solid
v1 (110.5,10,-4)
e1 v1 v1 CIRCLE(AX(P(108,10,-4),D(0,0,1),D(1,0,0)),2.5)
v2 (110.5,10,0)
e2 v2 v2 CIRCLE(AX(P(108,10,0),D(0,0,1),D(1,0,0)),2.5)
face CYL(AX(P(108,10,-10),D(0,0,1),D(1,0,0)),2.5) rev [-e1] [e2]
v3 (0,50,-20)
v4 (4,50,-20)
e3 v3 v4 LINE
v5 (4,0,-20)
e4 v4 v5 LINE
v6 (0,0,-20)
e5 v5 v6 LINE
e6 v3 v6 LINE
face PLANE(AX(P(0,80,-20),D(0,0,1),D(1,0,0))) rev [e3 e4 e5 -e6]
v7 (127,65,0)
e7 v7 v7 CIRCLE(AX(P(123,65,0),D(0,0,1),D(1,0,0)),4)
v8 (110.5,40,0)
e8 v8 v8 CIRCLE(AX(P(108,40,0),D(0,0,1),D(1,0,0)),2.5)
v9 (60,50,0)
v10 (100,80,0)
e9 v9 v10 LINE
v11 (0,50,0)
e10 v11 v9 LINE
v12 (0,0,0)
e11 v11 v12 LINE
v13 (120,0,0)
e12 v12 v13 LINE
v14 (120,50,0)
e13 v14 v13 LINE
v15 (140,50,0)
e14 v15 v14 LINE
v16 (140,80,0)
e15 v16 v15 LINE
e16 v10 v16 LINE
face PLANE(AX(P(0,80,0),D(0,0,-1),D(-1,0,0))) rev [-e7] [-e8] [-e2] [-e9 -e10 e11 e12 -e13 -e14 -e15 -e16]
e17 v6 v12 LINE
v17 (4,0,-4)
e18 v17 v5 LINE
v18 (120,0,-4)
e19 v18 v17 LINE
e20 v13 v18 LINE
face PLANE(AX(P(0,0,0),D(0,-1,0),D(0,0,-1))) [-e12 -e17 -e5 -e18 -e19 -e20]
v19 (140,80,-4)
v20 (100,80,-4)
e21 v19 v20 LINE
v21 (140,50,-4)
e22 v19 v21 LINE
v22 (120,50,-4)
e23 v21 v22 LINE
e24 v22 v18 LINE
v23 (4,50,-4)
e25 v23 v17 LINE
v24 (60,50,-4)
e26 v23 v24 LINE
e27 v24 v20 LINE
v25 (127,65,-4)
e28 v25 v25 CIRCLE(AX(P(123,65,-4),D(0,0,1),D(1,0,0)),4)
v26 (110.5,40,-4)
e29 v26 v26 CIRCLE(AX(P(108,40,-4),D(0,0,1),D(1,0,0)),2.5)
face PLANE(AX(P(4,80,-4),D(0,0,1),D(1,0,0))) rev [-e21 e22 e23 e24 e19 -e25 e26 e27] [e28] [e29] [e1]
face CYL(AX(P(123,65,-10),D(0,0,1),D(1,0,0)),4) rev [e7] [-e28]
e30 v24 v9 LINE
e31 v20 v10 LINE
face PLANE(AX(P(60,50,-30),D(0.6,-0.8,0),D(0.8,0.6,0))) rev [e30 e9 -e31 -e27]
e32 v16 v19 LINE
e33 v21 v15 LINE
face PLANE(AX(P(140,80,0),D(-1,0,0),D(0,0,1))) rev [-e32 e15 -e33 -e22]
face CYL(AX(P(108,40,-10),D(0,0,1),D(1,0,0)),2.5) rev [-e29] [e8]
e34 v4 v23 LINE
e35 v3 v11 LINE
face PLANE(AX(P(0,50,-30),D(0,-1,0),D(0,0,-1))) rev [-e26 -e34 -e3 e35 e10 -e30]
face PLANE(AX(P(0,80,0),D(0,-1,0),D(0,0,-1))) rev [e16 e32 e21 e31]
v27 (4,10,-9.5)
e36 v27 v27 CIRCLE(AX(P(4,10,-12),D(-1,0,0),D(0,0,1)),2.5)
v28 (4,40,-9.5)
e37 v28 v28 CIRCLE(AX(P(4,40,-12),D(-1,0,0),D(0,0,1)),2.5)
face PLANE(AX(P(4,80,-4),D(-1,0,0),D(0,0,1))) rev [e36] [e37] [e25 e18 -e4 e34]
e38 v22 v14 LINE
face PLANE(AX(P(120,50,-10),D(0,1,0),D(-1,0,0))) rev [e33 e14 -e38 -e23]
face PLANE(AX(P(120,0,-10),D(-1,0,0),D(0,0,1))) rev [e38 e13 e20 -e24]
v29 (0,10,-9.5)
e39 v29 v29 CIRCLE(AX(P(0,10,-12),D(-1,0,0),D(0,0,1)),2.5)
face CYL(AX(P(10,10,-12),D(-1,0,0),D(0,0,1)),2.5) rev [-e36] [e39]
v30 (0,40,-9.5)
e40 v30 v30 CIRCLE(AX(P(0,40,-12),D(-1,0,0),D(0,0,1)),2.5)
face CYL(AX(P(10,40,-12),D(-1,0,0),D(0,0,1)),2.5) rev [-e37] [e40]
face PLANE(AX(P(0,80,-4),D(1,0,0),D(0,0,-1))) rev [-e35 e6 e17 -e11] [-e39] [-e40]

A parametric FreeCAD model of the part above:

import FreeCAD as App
import Part
import Sketcher
Q = App.Units.Quantity

doc = App.newDocument("Part")
params = doc.addObject("Spreadsheet::Sheet", "Params")
for row, (alias, value) in enumerate([
    ("sketch1_width", "140 mm"),
    ("sketch1_width2", "136 mm"),
    ("sketch1_height", "16 mm"),
    ("pad1_length", "80 mm"),
    ("sketch2_diameter", "5 mm"),
    ("pocket1_length", "10 mm"),
    ("sketch3_diameter", "5 mm"),
    ("sketch3_diameter2", "8 mm"),
    ("pocket2_length", "10 mm"),
    ("sketch4_width", "60 mm"),
    ("sketch4_width2", "100 mm"),
    ("sketch4_height", "30 mm"),
    ("pocket3_length", "30 mm"),
    ("sketch5_width", "20 mm"),
    ("sketch5_height", "50 mm"),
    ("pocket4_length", "10 mm"),
], start=1):
    params.set(f"A{row}", alias)
    params.set(f"B{row}", "=" + value)
    params.setAlias(f"B{row}", alias)

body = doc.addObject("PartDesign::Body", "Body")

sketch1 = body.newObject("Sketcher::SketchObject", "Sketch")
sketch1.AttachmentSupport = (doc.getObject("XZ_Plane"), [""])
sketch1.MapMode = "FlatFace"
sketch1.addGeometry(Part.LineSegment(App.Vector(0, 0, 0), App.Vector(140, 0, 0)), False)
sketch1.addGeometry(Part.LineSegment(App.Vector(140, 0, 0), App.Vector(140, -4, 0)), False)
sketch1.addGeometry(Part.LineSegment(App.Vector(140, -4, 0), App.Vector(4, -4, 0)), False)
sketch1.addGeometry(Part.LineSegment(App.Vector(4, -4, 0), App.Vector(4, -20, 0)), False)
sketch1.addGeometry(Part.LineSegment(App.Vector(4, -20, 0), App.Vector(0, -20, 0)), False)
sketch1.addGeometry(Part.LineSegment(App.Vector(0, -20, 0), App.Vector(0, 0, 0)), False)
sketch1.addConstraint(Sketcher.Constraint("Coincident", 0, 2, 1, 1))
sketch1.addConstraint(Sketcher.Constraint("Coincident", 1, 2, 2, 1))
sketch1.addConstraint(Sketcher.Constraint("Coincident", 2, 2, 3, 1))
sketch1.addConstraint(Sketcher.Constraint("Coincident", 3, 2, 4, 1))
sketch1.addConstraint(Sketcher.Constraint("Coincident", 4, 2, 5, 1))
sketch1.addConstraint(Sketcher.Constraint("Coincident", 5, 2, 0, 1))
sketch1.addConstraint(Sketcher.Constraint("Horizontal", 0))
sketch1.addConstraint(Sketcher.Constraint("Vertical", 1))
sketch1.addConstraint(Sketcher.Constraint("Horizontal", 2))
sketch1.addConstraint(Sketcher.Constraint("Vertical", 3))
sketch1.addConstraint(Sketcher.Constraint("Horizontal", 4))
sketch1.addConstraint(Sketcher.Constraint("Vertical", 5))
sketch1.addConstraint(Sketcher.Constraint("Coincident", 5, 2, -1, 1))
sketch1.addConstraint(Sketcher.Constraint("Equal", 4, 1))
sketch1.addConstraint(Sketcher.Constraint("DistanceX", 0, 1, 0, 2, Q("140 mm")))
sketch1.addConstraint(Sketcher.Constraint("DistanceX", 2, 2, 2, 1, Q("136 mm")))
sketch1.addConstraint(Sketcher.Constraint("DistanceY", 3, 2, 3, 1, Q("16 mm")))
sketch1.setExpression("Constraints[14]", "Params.sketch1_width")
sketch1.setExpression("Constraints[15]", "Params.sketch1_width2")
sketch1.setExpression("Constraints[16]", "Params.sketch1_height")
pad1 = body.newObject("PartDesign::Pad", "Pad")
pad1.Profile = sketch1
pad1.setExpression("Length", "Params.pad1_length")
pad1.Reversed = True

sketch2 = body.newObject("Sketcher::SketchObject", "Sketch001")
sketch2.AttachmentSupport = (doc.getObject("YZ_Plane"), [""])
sketch2.MapMode = "FlatFace"
sketch2.addGeometry(Part.Circle(App.Vector(40, -12, 0), App.Vector(0, 0, 1), 2.5), False)
sketch2.addGeometry(Part.Circle(App.Vector(10, -12, 0), App.Vector(0, 0, 1), 2.5), False)
sketch2.addConstraint(Sketcher.Constraint("Equal", 0, 1))
sketch2.addConstraint(Sketcher.Constraint("Horizontal", 0, 3, 1, 3))
sketch2.addConstraint(Sketcher.Constraint("Diameter", 0, Q("5 mm")))
sketch2.addConstraint(Sketcher.Constraint("DistanceX", -1, 1, 0, 3, Q("40 mm")))
sketch2.addConstraint(Sketcher.Constraint("DistanceY", 0, 3, -1, 1, Q("12 mm")))
sketch2.addConstraint(Sketcher.Constraint("DistanceX", -1, 1, 1, 3, Q("10 mm")))
sketch2.setExpression("Constraints[2]", "Params.sketch2_diameter")
pocket1 = body.newObject("PartDesign::Pocket", "Pocket")
pocket1.Profile = sketch2
pocket1.setExpression("Length", "Params.pocket1_length")
pocket1.Reversed = True

sketch3 = body.newObject("Sketcher::SketchObject", "Sketch002")
sketch3.AttachmentSupport = (doc.getObject("XY_Plane"), [""])
sketch3.MapMode = "FlatFace"
sketch3.addGeometry(Part.Circle(App.Vector(108, 40, 0), App.Vector(0, 0, 1), 2.5), False)
sketch3.addGeometry(Part.Circle(App.Vector(108, 10, 0), App.Vector(0, 0, 1), 2.5), False)
sketch3.addGeometry(Part.Circle(App.Vector(123, 65, 0), App.Vector(0, 0, 1), 4), False)
sketch3.addConstraint(Sketcher.Constraint("Equal", 0, 1))
sketch3.addConstraint(Sketcher.Constraint("Vertical", 0, 3, 1, 3))
sketch3.addConstraint(Sketcher.Constraint("Diameter", 0, Q("5 mm")))
sketch3.addConstraint(Sketcher.Constraint("Diameter", 2, Q("8 mm")))
sketch3.addConstraint(Sketcher.Constraint("DistanceX", -1, 1, 0, 3, Q("108 mm")))
sketch3.addConstraint(Sketcher.Constraint("DistanceY", -1, 1, 0, 3, Q("40 mm")))
sketch3.addConstraint(Sketcher.Constraint("DistanceY", -1, 1, 1, 3, Q("10 mm")))
sketch3.addConstraint(Sketcher.Constraint("DistanceX", -1, 1, 2, 3, Q("123 mm")))
sketch3.addConstraint(Sketcher.Constraint("DistanceY", -1, 1, 2, 3, Q("65 mm")))
sketch3.setExpression("Constraints[2]", "Params.sketch3_diameter")
sketch3.setExpression("Constraints[3]", "Params.sketch3_diameter2")
pocket2 = body.newObject("PartDesign::Pocket", "Pocket001")
pocket2.Profile = sketch3
pocket2.setExpression("Length", "Params.pocket2_length")

sketch4 = body.newObject("Sketcher::SketchObject", "Sketch003")
sketch4.AttachmentSupport = (doc.getObject("XY_Plane"), [""])
sketch4.MapMode = "FlatFace"
sketch4.addGeometry(Part.LineSegment(App.Vector(0, 50, 0), App.Vector(60, 50, 0)), False)
sketch4.addGeometry(Part.LineSegment(App.Vector(60, 50, 0), App.Vector(100, 80, 0)), False)
sketch4.addGeometry(Part.LineSegment(App.Vector(100, 80, 0), App.Vector(0, 80, 0)), False)
sketch4.addGeometry(Part.LineSegment(App.Vector(0, 80, 0), App.Vector(0, 50, 0)), False)
sketch4.addConstraint(Sketcher.Constraint("Coincident", 0, 2, 1, 1))
sketch4.addConstraint(Sketcher.Constraint("Coincident", 1, 2, 2, 1))
sketch4.addConstraint(Sketcher.Constraint("Coincident", 2, 2, 3, 1))
sketch4.addConstraint(Sketcher.Constraint("Coincident", 3, 2, 0, 1))
sketch4.addConstraint(Sketcher.Constraint("Horizontal", 0))
sketch4.addConstraint(Sketcher.Constraint("Horizontal", 2))
sketch4.addConstraint(Sketcher.Constraint("Vertical", 3))
sketch4.addConstraint(Sketcher.Constraint("PointOnObject", 2, 2, -2))
sketch4.addConstraint(Sketcher.Constraint("DistanceX", 0, 1, 0, 2, Q("60 mm")))
sketch4.addConstraint(Sketcher.Constraint("DistanceX", 2, 2, 2, 1, Q("100 mm")))
sketch4.addConstraint(Sketcher.Constraint("DistanceY", 3, 2, 3, 1, Q("30 mm")))
sketch4.addConstraint(Sketcher.Constraint("DistanceY", -1, 1, 0, 2, Q("50 mm")))
sketch4.setExpression("Constraints[8]", "Params.sketch4_width")
sketch4.setExpression("Constraints[9]", "Params.sketch4_width2")
sketch4.setExpression("Constraints[10]", "Params.sketch4_height")
pocket3 = body.newObject("PartDesign::Pocket", "Pocket002")
pocket3.Profile = sketch4
pocket3.setExpression("Length", "Params.pocket3_length")

sketch5 = body.newObject("Sketcher::SketchObject", "Sketch004")
sketch5.AttachmentSupport = (doc.getObject("XY_Plane"), [""])
sketch5.MapMode = "FlatFace"
sketch5.addGeometry(Part.LineSegment(App.Vector(120, 50, 0), App.Vector(120, 0, 0)), False)
sketch5.addGeometry(Part.LineSegment(App.Vector(120, 0, 0), App.Vector(140, 0, 0)), False)
sketch5.addGeometry(Part.LineSegment(App.Vector(140, 0, 0), App.Vector(140, 50, 0)), False)
sketch5.addGeometry(Part.LineSegment(App.Vector(140, 50, 0), App.Vector(120, 50, 0)), False)
sketch5.addConstraint(Sketcher.Constraint("Coincident", 0, 2, 1, 1))
sketch5.addConstraint(Sketcher.Constraint("Coincident", 1, 2, 2, 1))
sketch5.addConstraint(Sketcher.Constraint("Coincident", 2, 2, 3, 1))
sketch5.addConstraint(Sketcher.Constraint("Coincident", 3, 2, 0, 1))
sketch5.addConstraint(Sketcher.Constraint("Vertical", 0))
sketch5.addConstraint(Sketcher.Constraint("Horizontal", 1))
sketch5.addConstraint(Sketcher.Constraint("Vertical", 2))
sketch5.addConstraint(Sketcher.Constraint("Horizontal", 3))
sketch5.addConstraint(Sketcher.Constraint("PointOnObject", 0, 2, -1))
sketch5.addConstraint(Sketcher.Constraint("DistanceX", 1, 1, 1, 2, Q("20 mm")))
sketch5.addConstraint(Sketcher.Constraint("DistanceY", 0, 2, 0, 1, Q("50 mm")))
sketch5.addConstraint(Sketcher.Constraint("DistanceX", -1, 1, 0, 2, Q("120 mm")))
sketch5.setExpression("Constraints[9]", "Params.sketch5_width")
sketch5.setExpression("Constraints[10]", "Params.sketch5_height")
pocket4 = body.newObject("PartDesign::Pocket", "Pocket003")
pocket4.Profile = sketch5
pocket4.setExpression("Length", "Params.pocket4_length")

doc.recompute()
